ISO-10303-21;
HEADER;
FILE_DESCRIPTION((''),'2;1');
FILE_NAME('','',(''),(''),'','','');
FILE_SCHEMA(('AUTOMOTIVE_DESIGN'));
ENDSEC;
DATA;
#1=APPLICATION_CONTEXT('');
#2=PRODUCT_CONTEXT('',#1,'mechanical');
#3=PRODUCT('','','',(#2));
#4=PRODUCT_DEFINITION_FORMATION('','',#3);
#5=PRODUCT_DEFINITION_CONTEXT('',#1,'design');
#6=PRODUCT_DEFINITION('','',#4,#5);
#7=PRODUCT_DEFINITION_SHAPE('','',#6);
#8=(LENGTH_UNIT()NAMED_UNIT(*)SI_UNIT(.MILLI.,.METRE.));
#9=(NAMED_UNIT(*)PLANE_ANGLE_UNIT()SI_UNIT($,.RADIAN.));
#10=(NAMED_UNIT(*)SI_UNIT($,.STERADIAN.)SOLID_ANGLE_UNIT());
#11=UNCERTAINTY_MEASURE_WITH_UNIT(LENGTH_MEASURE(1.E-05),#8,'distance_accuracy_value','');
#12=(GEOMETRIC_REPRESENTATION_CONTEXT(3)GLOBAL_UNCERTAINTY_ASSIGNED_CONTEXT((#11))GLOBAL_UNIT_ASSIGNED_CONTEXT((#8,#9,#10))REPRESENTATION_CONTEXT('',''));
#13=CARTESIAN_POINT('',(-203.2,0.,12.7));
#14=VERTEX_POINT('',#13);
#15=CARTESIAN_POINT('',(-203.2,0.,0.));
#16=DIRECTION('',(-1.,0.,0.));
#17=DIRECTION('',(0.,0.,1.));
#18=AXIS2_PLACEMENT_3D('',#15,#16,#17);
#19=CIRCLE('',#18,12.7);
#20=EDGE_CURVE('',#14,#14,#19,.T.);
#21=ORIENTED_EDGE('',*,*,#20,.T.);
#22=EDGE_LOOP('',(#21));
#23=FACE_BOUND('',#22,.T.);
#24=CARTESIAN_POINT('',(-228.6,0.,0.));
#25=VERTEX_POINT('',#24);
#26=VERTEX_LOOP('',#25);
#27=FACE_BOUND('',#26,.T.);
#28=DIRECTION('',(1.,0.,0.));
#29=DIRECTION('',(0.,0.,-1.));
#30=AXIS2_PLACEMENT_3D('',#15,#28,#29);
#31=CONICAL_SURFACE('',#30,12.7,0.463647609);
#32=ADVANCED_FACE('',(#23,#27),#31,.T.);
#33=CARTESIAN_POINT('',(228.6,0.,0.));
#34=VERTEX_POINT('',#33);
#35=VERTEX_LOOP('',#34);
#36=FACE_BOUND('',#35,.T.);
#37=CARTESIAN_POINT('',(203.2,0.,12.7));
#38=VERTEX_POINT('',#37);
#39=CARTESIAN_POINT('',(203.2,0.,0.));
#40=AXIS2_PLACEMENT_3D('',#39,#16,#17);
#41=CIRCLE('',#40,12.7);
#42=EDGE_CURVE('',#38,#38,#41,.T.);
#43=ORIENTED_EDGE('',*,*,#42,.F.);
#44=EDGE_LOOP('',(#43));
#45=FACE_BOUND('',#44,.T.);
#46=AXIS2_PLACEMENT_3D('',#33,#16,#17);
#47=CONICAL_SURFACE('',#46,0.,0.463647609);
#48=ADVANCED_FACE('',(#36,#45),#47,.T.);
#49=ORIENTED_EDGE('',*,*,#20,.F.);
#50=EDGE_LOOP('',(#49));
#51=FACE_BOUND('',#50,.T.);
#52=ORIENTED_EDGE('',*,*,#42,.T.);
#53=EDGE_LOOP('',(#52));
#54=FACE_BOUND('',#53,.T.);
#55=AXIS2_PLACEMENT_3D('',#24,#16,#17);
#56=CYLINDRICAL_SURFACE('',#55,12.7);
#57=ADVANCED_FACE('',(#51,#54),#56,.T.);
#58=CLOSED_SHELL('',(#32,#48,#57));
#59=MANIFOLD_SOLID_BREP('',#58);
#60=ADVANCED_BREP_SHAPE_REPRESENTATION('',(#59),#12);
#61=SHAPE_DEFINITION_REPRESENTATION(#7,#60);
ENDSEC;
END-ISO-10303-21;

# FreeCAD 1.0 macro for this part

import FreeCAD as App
import Part
import Sketcher

V = App.Vector
Q = App.Units.Quantity


def add_polygon(sketch, points):
    """Adds a closed chain of lines whose ends are joined by coincident constraints."""
    first, n = sketch.GeometryCount, len(points)
    for a, b in zip(points, points[1:] + points[:1]):
        sketch.addGeometry(Part.LineSegment(App.Vector(*a, 0), App.Vector(*b, 0)), False)
    for i in range(n):
        sketch.addConstraint(Sketcher.Constraint("Coincident", first + i, 2, first + (i + 1) % n, 1))

doc = App.newDocument("Part")
body = doc.addObject("PartDesign::Body", "Body")

# Sketch on XZ plane
sketch1 = body.newObject("Sketcher::SketchObject", "Sketch")
sketch1.AttachmentSupport = (doc.getObject("XZ_Plane"), [""])
sketch1.MapMode = "FlatFace"
add_polygon(sketch1, [(-229, 0), (229, 0), (203, -13), (-203, -13)])  # lines 0-3
sketch1.addConstraint(Sketcher.Constraint("Horizontal", 0))
sketch1.addConstraint(Sketcher.Constraint("Horizontal", 2))
sketch1.addConstraint(Sketcher.Constraint("Symmetric", 0, 2, 3, 2, -1, 1))
sketch1.addConstraint(Sketcher.Constraint("Equal", 1, 3))
sketch1.addConstraint(Sketcher.Constraint("DistanceX", 0, 1, 0, 2, Q("18 in")))
sketch1.addConstraint(Sketcher.Constraint("DistanceX", 2, 2, 2, 1, Q("16 in")))
sketch1.addConstraint(Sketcher.Constraint("DistanceY", 1, 2, -1, 1, Q("0.5 in")))
revolution = body.newObject("PartDesign::Revolution", "Revolution")
revolution.Profile = sketch1
revolution.ReferenceAxis = (sketch1, ["H_Axis"])
revolution.Angle = 360

doc.recompute()
